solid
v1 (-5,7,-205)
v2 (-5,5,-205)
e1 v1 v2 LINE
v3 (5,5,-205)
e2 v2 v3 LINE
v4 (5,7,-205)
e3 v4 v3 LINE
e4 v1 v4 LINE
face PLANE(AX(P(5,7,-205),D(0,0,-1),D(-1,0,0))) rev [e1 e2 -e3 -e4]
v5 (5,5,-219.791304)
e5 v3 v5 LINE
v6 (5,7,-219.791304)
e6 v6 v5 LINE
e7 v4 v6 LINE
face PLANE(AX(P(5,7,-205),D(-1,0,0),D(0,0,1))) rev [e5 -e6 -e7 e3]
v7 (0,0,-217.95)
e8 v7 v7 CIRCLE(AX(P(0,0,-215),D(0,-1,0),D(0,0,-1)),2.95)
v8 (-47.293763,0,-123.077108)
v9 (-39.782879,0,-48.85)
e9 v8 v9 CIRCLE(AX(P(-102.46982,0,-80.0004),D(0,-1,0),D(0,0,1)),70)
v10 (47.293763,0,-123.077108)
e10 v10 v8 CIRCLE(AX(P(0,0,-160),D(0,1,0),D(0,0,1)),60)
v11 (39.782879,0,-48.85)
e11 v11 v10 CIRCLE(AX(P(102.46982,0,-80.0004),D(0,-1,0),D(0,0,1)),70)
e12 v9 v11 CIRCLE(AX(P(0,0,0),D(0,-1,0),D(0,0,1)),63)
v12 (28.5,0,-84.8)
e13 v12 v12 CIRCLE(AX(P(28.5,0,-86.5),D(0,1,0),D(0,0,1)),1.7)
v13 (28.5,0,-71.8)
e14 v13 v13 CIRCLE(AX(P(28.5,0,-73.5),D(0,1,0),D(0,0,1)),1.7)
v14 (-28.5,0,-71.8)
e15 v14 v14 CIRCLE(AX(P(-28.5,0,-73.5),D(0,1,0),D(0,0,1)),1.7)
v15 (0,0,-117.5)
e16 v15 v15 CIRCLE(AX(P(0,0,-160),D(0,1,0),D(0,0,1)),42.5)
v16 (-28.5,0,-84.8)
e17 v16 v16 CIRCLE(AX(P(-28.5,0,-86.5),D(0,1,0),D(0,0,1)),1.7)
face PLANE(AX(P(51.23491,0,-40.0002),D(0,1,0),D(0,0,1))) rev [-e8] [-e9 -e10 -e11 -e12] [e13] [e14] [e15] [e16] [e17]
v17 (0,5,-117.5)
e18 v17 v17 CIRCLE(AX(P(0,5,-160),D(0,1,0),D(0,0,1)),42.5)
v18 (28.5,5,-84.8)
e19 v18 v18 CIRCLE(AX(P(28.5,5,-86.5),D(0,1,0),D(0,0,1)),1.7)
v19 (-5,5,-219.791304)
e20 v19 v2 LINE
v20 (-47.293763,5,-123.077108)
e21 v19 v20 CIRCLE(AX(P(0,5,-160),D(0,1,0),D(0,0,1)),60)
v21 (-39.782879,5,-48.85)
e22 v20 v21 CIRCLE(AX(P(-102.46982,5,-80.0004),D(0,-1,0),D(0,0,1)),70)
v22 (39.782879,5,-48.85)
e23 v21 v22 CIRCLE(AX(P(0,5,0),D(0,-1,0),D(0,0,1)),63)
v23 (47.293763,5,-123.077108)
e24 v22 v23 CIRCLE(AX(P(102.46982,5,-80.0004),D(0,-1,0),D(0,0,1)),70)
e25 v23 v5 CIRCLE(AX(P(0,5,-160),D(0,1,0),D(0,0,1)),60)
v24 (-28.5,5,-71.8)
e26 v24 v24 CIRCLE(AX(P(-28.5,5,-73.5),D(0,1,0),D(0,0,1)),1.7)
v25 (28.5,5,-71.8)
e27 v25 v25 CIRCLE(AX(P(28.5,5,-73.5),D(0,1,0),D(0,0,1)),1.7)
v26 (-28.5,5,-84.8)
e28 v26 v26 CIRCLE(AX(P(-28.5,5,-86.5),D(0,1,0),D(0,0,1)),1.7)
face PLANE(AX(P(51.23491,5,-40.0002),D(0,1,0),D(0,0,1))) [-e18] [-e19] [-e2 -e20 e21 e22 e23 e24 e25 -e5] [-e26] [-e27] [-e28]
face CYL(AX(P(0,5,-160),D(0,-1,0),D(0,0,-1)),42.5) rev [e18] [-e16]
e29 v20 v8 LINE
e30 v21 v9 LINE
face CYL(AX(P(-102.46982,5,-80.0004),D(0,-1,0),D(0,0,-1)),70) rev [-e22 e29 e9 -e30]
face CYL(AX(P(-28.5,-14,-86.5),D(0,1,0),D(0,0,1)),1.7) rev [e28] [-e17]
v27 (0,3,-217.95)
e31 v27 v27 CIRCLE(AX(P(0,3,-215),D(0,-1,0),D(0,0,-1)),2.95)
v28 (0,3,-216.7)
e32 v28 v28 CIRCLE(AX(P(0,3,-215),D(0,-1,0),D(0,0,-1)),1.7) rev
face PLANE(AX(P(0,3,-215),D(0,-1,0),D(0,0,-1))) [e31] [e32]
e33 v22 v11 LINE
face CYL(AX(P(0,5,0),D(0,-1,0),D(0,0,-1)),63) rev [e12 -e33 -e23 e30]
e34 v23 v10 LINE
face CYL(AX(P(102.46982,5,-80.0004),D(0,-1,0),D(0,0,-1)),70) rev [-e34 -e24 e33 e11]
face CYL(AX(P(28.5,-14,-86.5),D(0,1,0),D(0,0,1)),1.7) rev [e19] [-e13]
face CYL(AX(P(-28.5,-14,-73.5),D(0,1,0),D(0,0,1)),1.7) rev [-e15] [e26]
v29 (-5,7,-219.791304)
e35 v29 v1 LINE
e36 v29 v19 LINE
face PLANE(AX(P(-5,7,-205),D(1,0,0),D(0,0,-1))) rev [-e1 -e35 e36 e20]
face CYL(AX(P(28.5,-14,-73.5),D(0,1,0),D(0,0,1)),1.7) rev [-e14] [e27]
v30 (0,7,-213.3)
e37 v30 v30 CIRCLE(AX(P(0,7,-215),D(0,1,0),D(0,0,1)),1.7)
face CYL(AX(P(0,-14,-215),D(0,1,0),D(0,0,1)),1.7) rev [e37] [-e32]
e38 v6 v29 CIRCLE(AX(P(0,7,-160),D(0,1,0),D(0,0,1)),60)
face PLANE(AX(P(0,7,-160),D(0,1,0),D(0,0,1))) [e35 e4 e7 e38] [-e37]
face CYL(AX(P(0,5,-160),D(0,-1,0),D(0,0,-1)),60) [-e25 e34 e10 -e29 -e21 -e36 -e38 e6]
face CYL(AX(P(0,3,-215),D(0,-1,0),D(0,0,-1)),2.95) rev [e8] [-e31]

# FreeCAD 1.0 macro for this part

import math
import FreeCAD as App
import Part
import Sketcher

V = App.Vector

doc = App.newDocument("Part")
body = doc.addObject("PartDesign::Body", "Body")

sketch1 = body.newObject("Sketcher::SketchObject", "Sketch")
sketch1.AttachmentSupport = (doc.getObject("XZ_Plane"), [""])
sketch1.MapMode = "FlatFace"
sketch1.addGeometry([
    Part.ArcOfCircle(Part.Circle(V(0, 0, 0), V(0, 0, 1), 63), math.radians(-129), math.radians(-51)),
    Part.ArcOfCircle(Part.Circle(V(102, -80, 0), V(0, 0, 1), 70), math.radians(154), math.radians(218)),
    Part.ArcOfCircle(Part.Circle(V(0, -160, 0), V(0, 0, 1), 60), math.radians(142), math.radians(398)),
    Part.ArcOfCircle(Part.Circle(V(-102, -80, 0), V(0, 0, 1), 70), math.radians(-38), math.radians(26)),
    Part.Circle(V(0, -160, 0), V(0, 0, 1), 42),
], False)
sketch1.addConstraint([
    Sketcher.Constraint("Coincident", 0, 2, 1, 1),
    Sketcher.Constraint("Tangent", 1, 2, 2, 2),
    Sketcher.Constraint("Tangent", 2, 1, 3, 1),
    Sketcher.Constraint("Coincident", 3, 2, 0, 1),
    Sketcher.Constraint("Coincident", 0, 3, -1, 1),
    Sketcher.Constraint("Coincident", 4, 3, 2, 3),
    Sketcher.Constraint("Equal", 1, 3),
    Sketcher.Constraint("Symmetric", 1, 3, 3, 3, -2),
    Sketcher.Constraint("Diameter", 4, 85.0),
    Sketcher.Constraint("Radius", 0, 63.0),
    Sketcher.Constraint("Radius", 1, 70.0),
    Sketcher.Constraint("Radius", 2, 60.0),
    Sketcher.Constraint("DistanceY", 2, 3, -1, 1, 160.0),
    Sketcher.Constraint("DistanceY", 0, 2, -1, 1, 48.85),
])
pad1 = body.newObject("PartDesign::Pad", "Pad")
pad1.Profile = sketch1
pad1.Length = 5
pad1.Reversed = True

sketch2 = body.newObject("Sketcher::SketchObject", "Sketch001")
sketch2.AttachmentSupport = (doc.getObject("XZ_Plane"), [""])
sketch2.MapMode = "FlatFace"
sketch2.AttachmentOffset = App.Placement(V(0, 0, -5), App.Rotation())
sketch2.addGeometry([
    Part.LineSegment(V(-5, -205, 0), V(5, -205, 0)),
    Part.LineSegment(V(5, -205, 0), V(5, -220, 0)),
    Part.ArcOfCircle(Part.Circle(V(0, -160, 0), V(0, 0, 1), 60), math.radians(-94.78), math.radians(-85.22)),
    Part.LineSegment(V(-5, -220, 0), V(-5, -205, 0)),
], False)
sketch2.addConstraint([
    Sketcher.Constraint("Coincident", 0, 2, 1, 1),
    Sketcher.Constraint("Coincident", 1, 2, 2, 2),
    Sketcher.Constraint("Coincident", 2, 1, 3, 1),
    Sketcher.Constraint("Coincident", 3, 2, 0, 1),
    Sketcher.Constraint("Horizontal", 0),
    Sketcher.Constraint("Vertical", 1),
    Sketcher.Constraint("Vertical", 3),
    Sketcher.Constraint("Symmetric", 1, 2, 2, 1, -2),
    Sketcher.Constraint("Radius", 2, 60.0),
    Sketcher.Constraint("DistanceX", 0, 1, 0, 2, 10.0),
    Sketcher.Constraint("DistanceY", 2, 3, -1, 1, 160.0),
    Sketcher.Constraint("DistanceY", 0, 2, -1, 1, 205.0),
])
pad2 = body.newObject("PartDesign::Pad", "Pad001")
pad2.Profile = sketch2
pad2.Length = 2
pad2.Reversed = True

sketch3 = body.newObject("Sketcher::SketchObject", "Sketch002")
sketch3.AttachmentSupport = (doc.getObject("XZ_Plane"), [""])
sketch3.MapMode = "FlatFace"
sketch3.AttachmentOffset = App.Placement(V(0, 0, -7), App.Rotation())
sketch3.addGeometry([
    Part.Circle(V(0, -215, 0), V(0, 0, 1), 1.7),
    Part.Circle(V(-28.5, -86.5, 0), V(0, 0, 1), 1.7),
    Part.Circle(V(-28.5, -73.5, 0), V(0, 0, 1), 1.7),
    Part.Circle(V(28.5, -73.5, 0), V(0, 0, 1), 1.7),
    Part.Circle(V(28.5, -86.5, 0), V(0, 0, 1), 1.7),
], False)
sketch3.addConstraint([
    Sketcher.Constraint("Equal", 0, 1),
    Sketcher.Constraint("Equal", 1, 2),
    Sketcher.Constraint("Equal", 2, 3),
    Sketcher.Constraint("Equal", 3, 4),
    Sketcher.Constraint("Symmetric", 2, 3, 3, 3, -2),
    Sketcher.Constraint("Symmetric", 1, 3, 4, 3, -2),
    Sketcher.Constraint("PointOnObject", 0, 3, -2),
    Sketcher.Constraint("Vertical", 1, 3, 2, 3),
    Sketcher.Constraint("Diameter", 0, 3.4),
    Sketcher.Constraint("DistanceY", 0, 3, -1, 1, 215.0),
    Sketcher.Constraint("DistanceY", 1, 3, 2, 3, 13.0),
    Sketcher.Constraint("DistanceX", 2, 3, 3, 3, 57.0),
    Sketcher.Constraint("DistanceY", 1, 3, -1, 1, 86.5),
])
pocket1 = body.newObject("PartDesign::Pocket", "Pocket")
pocket1.Profile = sketch3
pocket1.Length = 21
pocket1.Reversed = True

sketch4 = body.newObject("Sketcher::SketchObject", "Sketch003")
sketch4.AttachmentSupport = (doc.getObject("XZ_Plane"), [""])
sketch4.MapMode = "FlatFace"
sketch4.addGeometry(Part.Circle(V(0, -215, 0), V(0, 0, 1), 3), False)
sketch4.addConstraint([
    Sketcher.Constraint("PointOnObject", 0, 3, -2),
    Sketcher.Constraint("Diameter", 0, 5.9),
    Sketcher.Constraint("DistanceY", 0, 3, -1, 1, 215.0),
])
pocket2 = body.newObject("PartDesign::Pocket", "Pocket001")
pocket2.Profile = sketch4
pocket2.Length = 3

doc.recompute()
